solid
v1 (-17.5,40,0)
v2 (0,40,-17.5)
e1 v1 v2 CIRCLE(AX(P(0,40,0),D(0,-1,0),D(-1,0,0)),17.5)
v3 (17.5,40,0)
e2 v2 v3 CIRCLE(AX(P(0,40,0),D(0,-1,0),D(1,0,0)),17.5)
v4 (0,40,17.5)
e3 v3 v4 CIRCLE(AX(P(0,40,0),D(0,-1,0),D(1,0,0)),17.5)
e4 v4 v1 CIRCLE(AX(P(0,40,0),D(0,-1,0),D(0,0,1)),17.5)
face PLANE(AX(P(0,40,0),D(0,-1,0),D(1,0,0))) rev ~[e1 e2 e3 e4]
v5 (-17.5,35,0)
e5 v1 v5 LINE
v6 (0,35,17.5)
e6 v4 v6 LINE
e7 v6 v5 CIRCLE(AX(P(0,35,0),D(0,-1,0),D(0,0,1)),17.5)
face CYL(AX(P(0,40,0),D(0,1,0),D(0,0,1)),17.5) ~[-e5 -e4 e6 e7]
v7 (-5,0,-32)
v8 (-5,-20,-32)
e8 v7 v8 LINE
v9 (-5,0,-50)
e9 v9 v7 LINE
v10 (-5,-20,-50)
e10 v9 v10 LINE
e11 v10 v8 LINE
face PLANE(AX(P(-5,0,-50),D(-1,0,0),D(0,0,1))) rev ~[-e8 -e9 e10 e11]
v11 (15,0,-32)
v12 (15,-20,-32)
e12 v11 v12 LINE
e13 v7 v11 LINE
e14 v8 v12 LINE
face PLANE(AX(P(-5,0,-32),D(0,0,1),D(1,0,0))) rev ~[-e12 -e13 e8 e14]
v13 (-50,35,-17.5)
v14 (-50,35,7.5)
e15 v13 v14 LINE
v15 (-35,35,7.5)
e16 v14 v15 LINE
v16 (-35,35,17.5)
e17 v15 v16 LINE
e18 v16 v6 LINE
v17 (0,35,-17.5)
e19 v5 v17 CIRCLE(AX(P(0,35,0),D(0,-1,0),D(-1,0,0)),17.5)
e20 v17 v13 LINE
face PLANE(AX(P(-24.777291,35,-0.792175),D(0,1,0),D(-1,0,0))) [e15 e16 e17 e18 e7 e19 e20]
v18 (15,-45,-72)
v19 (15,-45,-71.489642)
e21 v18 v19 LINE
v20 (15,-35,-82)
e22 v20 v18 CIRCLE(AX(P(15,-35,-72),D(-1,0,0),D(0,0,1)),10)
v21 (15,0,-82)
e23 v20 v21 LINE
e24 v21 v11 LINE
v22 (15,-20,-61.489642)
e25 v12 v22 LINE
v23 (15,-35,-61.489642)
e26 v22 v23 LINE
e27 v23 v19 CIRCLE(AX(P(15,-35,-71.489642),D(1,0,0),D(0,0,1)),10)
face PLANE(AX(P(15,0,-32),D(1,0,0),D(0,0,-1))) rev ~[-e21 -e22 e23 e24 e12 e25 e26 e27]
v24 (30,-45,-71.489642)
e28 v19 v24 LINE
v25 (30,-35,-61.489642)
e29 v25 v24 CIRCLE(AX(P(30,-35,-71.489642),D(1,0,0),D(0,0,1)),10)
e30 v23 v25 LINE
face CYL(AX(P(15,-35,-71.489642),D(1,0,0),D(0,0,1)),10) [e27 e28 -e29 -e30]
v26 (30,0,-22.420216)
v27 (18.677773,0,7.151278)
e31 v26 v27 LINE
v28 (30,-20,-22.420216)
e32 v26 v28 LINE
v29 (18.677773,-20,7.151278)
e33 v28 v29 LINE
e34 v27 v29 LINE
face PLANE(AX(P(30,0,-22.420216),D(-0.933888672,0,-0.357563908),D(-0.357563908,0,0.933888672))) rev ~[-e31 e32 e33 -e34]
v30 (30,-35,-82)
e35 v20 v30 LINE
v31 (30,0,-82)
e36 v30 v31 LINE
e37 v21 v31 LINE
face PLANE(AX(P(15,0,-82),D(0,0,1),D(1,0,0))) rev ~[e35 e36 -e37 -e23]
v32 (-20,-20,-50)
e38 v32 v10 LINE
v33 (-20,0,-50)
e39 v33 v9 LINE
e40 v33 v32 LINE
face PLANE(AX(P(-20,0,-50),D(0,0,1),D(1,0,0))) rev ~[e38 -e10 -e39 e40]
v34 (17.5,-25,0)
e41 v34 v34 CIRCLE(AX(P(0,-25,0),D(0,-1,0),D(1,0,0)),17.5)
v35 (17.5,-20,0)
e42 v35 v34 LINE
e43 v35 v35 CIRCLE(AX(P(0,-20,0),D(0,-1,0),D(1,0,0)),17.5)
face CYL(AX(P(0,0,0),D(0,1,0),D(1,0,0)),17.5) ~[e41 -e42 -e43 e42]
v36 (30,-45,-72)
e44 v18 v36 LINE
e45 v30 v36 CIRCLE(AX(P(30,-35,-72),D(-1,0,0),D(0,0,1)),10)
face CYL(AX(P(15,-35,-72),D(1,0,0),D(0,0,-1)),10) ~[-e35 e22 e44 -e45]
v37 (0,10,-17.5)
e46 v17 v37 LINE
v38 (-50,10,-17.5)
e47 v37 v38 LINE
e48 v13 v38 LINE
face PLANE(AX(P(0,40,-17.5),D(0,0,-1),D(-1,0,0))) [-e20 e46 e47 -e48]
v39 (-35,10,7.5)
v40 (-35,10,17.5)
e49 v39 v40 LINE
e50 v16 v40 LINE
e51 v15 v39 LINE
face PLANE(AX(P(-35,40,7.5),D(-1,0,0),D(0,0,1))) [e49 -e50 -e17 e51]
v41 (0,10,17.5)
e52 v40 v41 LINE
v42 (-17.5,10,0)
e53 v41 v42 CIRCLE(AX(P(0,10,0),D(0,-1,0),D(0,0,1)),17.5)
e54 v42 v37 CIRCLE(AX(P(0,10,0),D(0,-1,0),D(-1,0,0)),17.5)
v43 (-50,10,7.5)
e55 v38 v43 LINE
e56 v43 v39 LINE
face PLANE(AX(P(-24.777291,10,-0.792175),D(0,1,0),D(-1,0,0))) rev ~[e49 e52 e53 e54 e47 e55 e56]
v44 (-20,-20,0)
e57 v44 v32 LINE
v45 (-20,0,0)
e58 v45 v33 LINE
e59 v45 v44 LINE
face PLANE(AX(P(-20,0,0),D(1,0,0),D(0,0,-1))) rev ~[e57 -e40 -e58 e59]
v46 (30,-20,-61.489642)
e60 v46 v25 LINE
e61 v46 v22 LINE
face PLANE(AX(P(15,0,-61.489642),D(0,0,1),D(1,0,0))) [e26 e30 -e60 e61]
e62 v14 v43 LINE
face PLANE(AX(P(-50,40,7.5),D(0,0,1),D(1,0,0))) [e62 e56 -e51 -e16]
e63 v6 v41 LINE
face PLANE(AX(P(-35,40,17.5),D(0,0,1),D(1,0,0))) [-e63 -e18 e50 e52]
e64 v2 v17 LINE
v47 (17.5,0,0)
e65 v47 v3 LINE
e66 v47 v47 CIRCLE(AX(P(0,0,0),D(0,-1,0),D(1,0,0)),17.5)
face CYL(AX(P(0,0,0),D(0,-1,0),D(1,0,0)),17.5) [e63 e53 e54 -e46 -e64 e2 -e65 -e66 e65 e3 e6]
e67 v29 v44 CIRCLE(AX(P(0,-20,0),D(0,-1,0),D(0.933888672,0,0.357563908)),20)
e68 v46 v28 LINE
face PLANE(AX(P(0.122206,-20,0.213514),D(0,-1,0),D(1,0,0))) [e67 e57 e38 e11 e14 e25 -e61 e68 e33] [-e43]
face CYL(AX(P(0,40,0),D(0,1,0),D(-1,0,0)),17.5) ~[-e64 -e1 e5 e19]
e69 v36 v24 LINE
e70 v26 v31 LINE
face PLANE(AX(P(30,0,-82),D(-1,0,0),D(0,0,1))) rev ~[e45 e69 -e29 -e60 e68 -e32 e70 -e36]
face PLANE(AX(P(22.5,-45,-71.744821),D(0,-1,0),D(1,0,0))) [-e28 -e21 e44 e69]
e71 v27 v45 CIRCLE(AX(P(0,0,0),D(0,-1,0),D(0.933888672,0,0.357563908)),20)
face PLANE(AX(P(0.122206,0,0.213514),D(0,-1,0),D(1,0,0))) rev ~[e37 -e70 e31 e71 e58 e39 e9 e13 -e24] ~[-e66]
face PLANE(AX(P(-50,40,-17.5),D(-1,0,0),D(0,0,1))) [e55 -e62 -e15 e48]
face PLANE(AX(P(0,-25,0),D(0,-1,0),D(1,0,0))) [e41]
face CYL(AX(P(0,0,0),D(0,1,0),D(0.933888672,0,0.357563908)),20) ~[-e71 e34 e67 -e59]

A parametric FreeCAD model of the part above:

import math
import FreeCAD as App
import Part
import Sketcher

V = App.Vector
Q = App.Units.Quantity


def edges_at(feature, points):
    """Names of the edges that pass closest to the given points."""
    edges = feature.Shape.Edges
    near = lambda p: min(range(len(edges)), key=lambda i: edges[i].distToShape(Part.Vertex(*p))[0])
    return sorted({f"Edge{near(p) + 1}" for p in points})


def add_polygon(sketch, points):
    """Adds a closed chain of lines whose ends are joined by coincident constraints."""
    first, n = sketch.GeometryCount, len(points)
    for a, b in zip(points, points[1:] + points[:1]):
        sketch.addGeometry(Part.LineSegment(App.Vector(*a, 0), App.Vector(*b, 0)), False)
    for i in range(n):
        sketch.addConstraint(Sketcher.Constraint("Coincident", first + i, 2, first + (i + 1) % n, 1))

doc = App.newDocument("Part")
body = doc.addObject("PartDesign::Body", "Body")

sketch1 = body.newObject("Sketcher::SketchObject", "Sketch")
sketch1.AttachmentSupport = (doc.getObject("XZ_Plane"), [""])
sketch1.MapMode = "FlatFace"
sketch1.addGeometry(Part.ArcOfCircle(Part.Circle(V(0, 0, 0), V(0, 0, 1), 20), math.radians(21), math.radians(180)), False)
sketch1.addGeometry(Part.LineSegment(V(-20, 0, 0), V(-20, -50, 0)), False)
sketch1.addGeometry(Part.LineSegment(V(-20, -50, 0), V(-5, -50, 0)), False)
sketch1.addGeometry(Part.LineSegment(V(-5, -50, 0), V(-5, -32, 0)), False)
sketch1.addGeometry(Part.LineSegment(V(-5, -32, 0), V(15, -32, 0)), False)
sketch1.addGeometry(Part.LineSegment(V(15, -32, 0), V(15, -82, 0)), False)
sketch1.addGeometry(Part.LineSegment(V(15, -82, 0), V(30, -82, 0)), False)
sketch1.addGeometry(Part.LineSegment(V(30, -82, 0), V(30, -22, 0)), False)
sketch1.addGeometry(Part.LineSegment(V(30, -22, 0), V(19, 7, 0)), False)
sketch1.addGeometry(Part.Circle(V(0, 0, 0), V(0, 0, 1), 18), False)
sketch1.addConstraint(Sketcher.Constraint("Tangent", 0, 2, 1, 1))
sketch1.addConstraint(Sketcher.Constraint("Coincident", 1, 2, 2, 1))
sketch1.addConstraint(Sketcher.Constraint("Coincident", 2, 2, 3, 1))
sketch1.addConstraint(Sketcher.Constraint("Coincident", 3, 2, 4, 1))
sketch1.addConstraint(Sketcher.Constraint("Coincident", 4, 2, 5, 1))
sketch1.addConstraint(Sketcher.Constraint("Coincident", 5, 2, 6, 1))
sketch1.addConstraint(Sketcher.Constraint("Coincident", 6, 2, 7, 1))
sketch1.addConstraint(Sketcher.Constraint("Coincident", 7, 2, 8, 1))
sketch1.addConstraint(Sketcher.Constraint("Tangent", 8, 2, 0, 1))
sketch1.addConstraint(Sketcher.Constraint("Vertical", 1))
sketch1.addConstraint(Sketcher.Constraint("Horizontal", 2))
sketch1.addConstraint(Sketcher.Constraint("Vertical", 3))
sketch1.addConstraint(Sketcher.Constraint("Horizontal", 4))
sketch1.addConstraint(Sketcher.Constraint("Vertical", 5))
sketch1.addConstraint(Sketcher.Constraint("Horizontal", 6))
sketch1.addConstraint(Sketcher.Constraint("Vertical", 7))
sketch1.addConstraint(Sketcher.Constraint("Coincident", 0, 3, -1, 1))
sketch1.addConstraint(Sketcher.Constraint("Coincident", 9, 3, -1, 1))
sketch1.addConstraint(Sketcher.Constraint("Equal", 2, 6))
sketch1.addConstraint(Sketcher.Constraint("Equal", 1, 5))
sketch1.addConstraint(Sketcher.Constraint("Diameter", 9, Q("35 mm")))
sketch1.addConstraint(Sketcher.Constraint("Radius", 0, Q("20 mm")))
sketch1.addConstraint(Sketcher.Constraint("DistanceX", 2, 1, 2, 2, Q("15 mm")))
sketch1.addConstraint(Sketcher.Constraint("DistanceX", 4, 1, 4, 2, Q("20 mm")))
sketch1.addConstraint(Sketcher.Constraint("DistanceY", 1, 2, 1, 1, Q("50 mm")))
sketch1.addConstraint(Sketcher.Constraint("DistanceY", 3, 1, 3, 2, Q("18 mm")))
sketch1.addConstraint(Sketcher.Constraint("DistanceY", 7, 1, 7, 2, Q("59.579784 mm")))
pad1 = body.newObject("PartDesign::Pad", "Pad")
pad1.Profile = sketch1
pad1.Length = 20

sketch2 = body.newObject("Sketcher::SketchObject", "Sketch001")
sketch2.AttachmentSupport = (doc.getObject("XZ_Plane"), [""])
sketch2.MapMode = "FlatFace"
add_polygon(sketch2, [(15, -61), (15, -82), (30, -82), (30, -61)])
sketch2.addConstraint(Sketcher.Constraint("Vertical", 0))
sketch2.addConstraint(Sketcher.Constraint("Horizontal", 1))
sketch2.addConstraint(Sketcher.Constraint("Vertical", 2))
sketch2.addConstraint(Sketcher.Constraint("Horizontal", 3))
sketch2.addConstraint(Sketcher.Constraint("DistanceX", 1, 1, 1, 2, Q("15 mm")))
sketch2.addConstraint(Sketcher.Constraint("DistanceX", -1, 1, 0, 2, Q("15 mm")))
sketch2.addConstraint(Sketcher.Constraint("DistanceY", 0, 2, -1, 1, Q("82 mm")))
sketch2.addConstraint(Sketcher.Constraint("DistanceY", 0, 2, 0, 1, Q("20.510358 mm")))
pad2 = body.newObject("PartDesign::Pad", "Pad001")
pad2.Profile = sketch2
pad2.Length = 45

sketch3 = body.newObject("Sketcher::SketchObject", "Sketch002")
sketch3.AttachmentSupport = (doc.getObject("XZ_Plane"), [""])
sketch3.MapMode = "FlatFace"
sketch3.addGeometry(Part.Circle(V(0, 0, 0), V(0, 0, 1), 18), False)
sketch3.addConstraint(Sketcher.Constraint("Coincident", 0, 3, -1, 1))
sketch3.addConstraint(Sketcher.Constraint("Diameter", 0, Q("35 mm")))
pad3 = body.newObject("PartDesign::Pad", "Pad002")
pad3.Profile = sketch3
pad3.Length = 25

sketch4 = body.newObject("Sketcher::SketchObject", "Sketch003")
sketch4.AttachmentSupport = (doc.getObject("XZ_Plane"), [""])
sketch4.MapMode = "FlatFace"
sketch4.addGeometry(Part.Circle(V(0, 0, 0), V(0, 0, 1), 18), False)
sketch4.addConstraint(Sketcher.Constraint("Coincident", 0, 3, -1, 1))
sketch4.addConstraint(Sketcher.Constraint("Diameter", 0, Q("35 mm")))
pad4 = body.newObject("PartDesign::Pad", "Pad003")
pad4.Profile = sketch4
pad4.Length = 40
pad4.Reversed = True
doc.recompute()

fillet = body.newObject("PartDesign::Fillet", "Fillet")
fillet.Base = (pad4, edges_at(pad4, [(22.5, -45, -61.49), (22.5, -45, -82)]))
fillet.Radius = 10

sketch5 = body.newObject("Sketcher::SketchObject", "Sketch004")
sketch5.AttachmentSupport = (doc.getObject("XZ_Plane"), [""])
sketch5.MapMode = "FlatFace"
sketch5.AttachmentOffset = App.Placement(V(0, 0, -40), App.Rotation())
sketch5.addGeometry(Part.LineSegment(V(-35, 18, 0), V(0, 18, 0)), False)
sketch5.addGeometry(Part.ArcOfCircle(Part.Circle(V(0, 0, 0), V(0, 0, 1), 18), math.radians(90), math.radians(180)), False)
sketch5.addGeometry(Part.ArcOfCircle(Part.Circle(V(0, 0, 0), V(0, 0, 1), 18), math.radians(180), math.radians(270)), False)
sketch5.addGeometry(Part.LineSegment(V(0, -18, 0), V(-50, -18, 0)), False)
sketch5.addGeometry(Part.LineSegment(V(-50, -18, 0), V(-50, 8, 0)), False)
sketch5.addGeometry(Part.LineSegment(V(-50, 8, 0), V(-35, 8, 0)), False)
sketch5.addGeometry(Part.LineSegment(V(-35, 8, 0), V(-35, 18, 0)), False)
sketch5.addConstraint(Sketcher.Constraint("Tangent", 0, 2, 1, 1))
sketch5.addConstraint(Sketcher.Constraint("Tangent", 1, 2, 2, 1))
sketch5.addConstraint(Sketcher.Constraint("Tangent", 2, 2, 3, 1))
sketch5.addConstraint(Sketcher.Constraint("Coincident", 3, 2, 4, 1))
sketch5.addConstraint(Sketcher.Constraint("Coincident", 4, 2, 5, 1))
sketch5.addConstraint(Sketcher.Constraint("Coincident", 5, 2, 6, 1))
sketch5.addConstraint(Sketcher.Constraint("Coincident", 6, 2, 0, 1))
sketch5.addConstraint(Sketcher.Constraint("Horizontal", 0))
sketch5.addConstraint(Sketcher.Constraint("Horizontal", 3))
sketch5.addConstraint(Sketcher.Constraint("Vertical", 4))
sketch5.addConstraint(Sketcher.Constraint("Horizontal", 5))
sketch5.addConstraint(Sketcher.Constraint("Vertical", 6))
sketch5.addConstraint(Sketcher.Constraint("Coincident", 1, 3, -1, 1))
sketch5.addConstraint(Sketcher.Constraint("Equal", 1, 2))
sketch5.addConstraint(Sketcher.Constraint("PointOnObject", 1, 2, -1))
sketch5.addConstraint(Sketcher.Constraint("Radius", 1, Q("17.5 mm")))
sketch5.addConstraint(Sketcher.Constraint("DistanceX", 0, 1, 0, 2, Q("35 mm")))
sketch5.addConstraint(Sketcher.Constraint("DistanceX", 3, 2, 3, 1, Q("50 mm")))
sketch5.addConstraint(Sketcher.Constraint("DistanceY", 4, 1, 4, 2, Q("25 mm")))
pad5 = body.newObject("PartDesign::Pad", "Pad004")
pad5.Profile = sketch5
pad5.Length = 30

sketch6 = body.newObject("Sketcher::SketchObject", "Sketch005")
sketch6.AttachmentSupport = (doc.getObject("XZ_Plane"), [""])
sketch6.MapMode = "FlatFace"
sketch6.AttachmentOffset = App.Placement(V(0, 0, -40), App.Rotation())
sketch6.addGeometry(Part.LineSegment(V(-35, 18, 0), V(0, 18, 0)), False)
sketch6.addGeometry(Part.ArcOfCircle(Part.Circle(V(0, 0, 0), V(0, 0, 1), 18), math.radians(90), math.radians(180)), False)
sketch6.addGeometry(Part.ArcOfCircle(Part.Circle(V(0, 0, 0), V(0, 0, 1), 18), math.radians(180), math.radians(270)), False)
sketch6.addGeometry(Part.LineSegment(V(0, -18, 0), V(-50, -18, 0)), False)
sketch6.addGeometry(Part.LineSegment(V(-50, -18, 0), V(-50, 8, 0)), False)
sketch6.addGeometry(Part.LineSegment(V(-50, 8, 0), V(-35, 8, 0)), False)
sketch6.addGeometry(Part.LineSegment(V(-35, 8, 0), V(-35, 18, 0)), False)
sketch6.addConstraint(Sketcher.Constraint("Tangent", 0, 2, 1, 1))
sketch6.addConstraint(Sketcher.Constraint("Tangent", 1, 2, 2, 1))
sketch6.addConstraint(Sketcher.Constraint("Tangent", 2, 2, 3, 1))
sketch6.addConstraint(Sketcher.Constraint("Coincident", 3, 2, 4, 1))
sketch6.addConstraint(Sketcher.Constraint("Coincident", 4, 2, 5, 1))
sketch6.addConstraint(Sketcher.Constraint("Coincident", 5, 2, 6, 1))
sketch6.addConstraint(Sketcher.Constraint("Coincident", 6, 2, 0, 1))
sketch6.addConstraint(Sketcher.Constraint("Horizontal", 0))
sketch6.addConstraint(Sketcher.Constraint("Horizontal", 3))
sketch6.addConstraint(Sketcher.Constraint("Vertical", 4))
sketch6.addConstraint(Sketcher.Constraint("Horizontal", 5))
sketch6.addConstraint(Sketcher.Constraint("Vertical", 6))
sketch6.addConstraint(Sketcher.Constraint("Coincident", 1, 3, -1, 1))
sketch6.addConstraint(Sketcher.Constraint("Equal", 1, 2))
sketch6.addConstraint(Sketcher.Constraint("PointOnObject", 1, 2, -1))
sketch6.addConstraint(Sketcher.Constraint("Radius", 1, Q("17.5 mm")))
sketch6.addConstraint(Sketcher.Constraint("DistanceX", 0, 1, 0, 2, Q("35 mm")))
sketch6.addConstraint(Sketcher.Constraint("DistanceX", 3, 2, 3, 1, Q("50 mm")))
sketch6.addConstraint(Sketcher.Constraint("DistanceY", 4, 1, 4, 2, Q("25 mm")))
pocket1 = body.newObject("PartDesign::Pocket", "Pocket")
pocket1.Profile = sketch6
pocket1.Length = 5
pocket1.Reversed = True

doc.recompute()
